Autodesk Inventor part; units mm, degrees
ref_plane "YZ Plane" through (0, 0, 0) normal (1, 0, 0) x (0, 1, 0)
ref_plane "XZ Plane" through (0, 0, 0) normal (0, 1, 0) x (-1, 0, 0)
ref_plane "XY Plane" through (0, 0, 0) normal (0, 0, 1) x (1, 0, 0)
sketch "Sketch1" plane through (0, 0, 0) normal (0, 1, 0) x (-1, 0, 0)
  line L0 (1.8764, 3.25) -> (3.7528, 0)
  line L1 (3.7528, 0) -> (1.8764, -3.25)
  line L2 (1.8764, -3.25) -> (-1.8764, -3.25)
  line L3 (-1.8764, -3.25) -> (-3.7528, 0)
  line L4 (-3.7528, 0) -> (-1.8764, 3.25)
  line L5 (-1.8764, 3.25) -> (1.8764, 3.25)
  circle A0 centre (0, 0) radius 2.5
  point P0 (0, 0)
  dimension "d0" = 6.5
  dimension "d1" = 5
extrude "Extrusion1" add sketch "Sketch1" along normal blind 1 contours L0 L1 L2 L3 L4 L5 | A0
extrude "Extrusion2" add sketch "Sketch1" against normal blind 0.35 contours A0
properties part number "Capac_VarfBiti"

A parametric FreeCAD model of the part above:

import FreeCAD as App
import Part
import Sketcher
Q = App.Units.Quantity


def add_polygon(sketch, points):
    """Adds a closed chain of lines whose ends are joined by coincident constraints."""
    first, n = sketch.GeometryCount, len(points)
    for a, b in zip(points, points[1:] + points[:1]):
        sketch.addGeometry(Part.LineSegment(App.Vector(*a, 0), App.Vector(*b, 0)), False)
    for i in range(n):
        sketch.addConstraint(Sketcher.Constraint("Coincident", first + i, 2, first + (i + 1) % n, 1))

doc = App.newDocument("Part")
body = doc.addObject("PartDesign::Body", "Body")

# Sketch on XZ plane
sketch1 = body.newObject("Sketcher::SketchObject", "Sketch")
sketch1.AttachmentSupport = (doc.getObject("XZ_Plane"), [""])
sketch1.MapMode = "FlatFace"
add_polygon(sketch1, [(-3.8, 0), (-1.9, 3.2), (1.9, 3.2), (3.8, 0), (1.9, -3.2), (-1.9, -3.2)])  # lines 0-5
sketch1.addConstraint(Sketcher.Constraint("Horizontal", 1))
sketch1.addConstraint(Sketcher.Constraint("Horizontal", 4))
sketch1.addConstraint(Sketcher.Constraint("Symmetric", 0, 2, 3, 2, -1, 1))
sketch1.addConstraint(Sketcher.Constraint("Symmetric", 2, 2, 5, 2, -1, 1))
sketch1.addConstraint(Sketcher.Constraint("PointOnObject", 2, 2, -1))
sketch1.addConstraint(Sketcher.Constraint("Parallel", 2, 5))
sketch1.addConstraint(Sketcher.Constraint("Vertical", 1, 2, 3, 2))
sketch1.addConstraint(Sketcher.Constraint("DistanceY", 3, 2, 1, 2, Q("6.5 mm")))
sketch1.addConstraint(Sketcher.Constraint("Angle", 0, Q("59.9998 deg")))
sketch1.addConstraint(Sketcher.Constraint("DistanceX", 1, 1, 1, 2, Q("3.7528 mm")))
pad1 = body.newObject("PartDesign::Pad", "Pad")
pad1.Profile = sketch1
pad1.Length = 1
pad1.Reversed = True

# Sketch on XZ plane
sketch2 = body.newObject("Sketcher::SketchObject", "Sketch001")
sketch2.AttachmentSupport = (doc.getObject("XZ_Plane"), [""])
sketch2.MapMode = "FlatFace"
sketch2.addGeometry(Part.Circle(App.Vector(0, 0, 0), App.Vector(0, 0, 1), 2.5), False)
sketch2.addConstraint(Sketcher.Constraint("Coincident", 0, 3, -1, 1))
sketch2.addConstraint(Sketcher.Constraint("Diameter", 0, Q("5 mm")))
pad2 = body.newObject("PartDesign::Pad", "Pad001")
pad2.Profile = sketch2
pad2.Length = 0.35

doc.recompute()
